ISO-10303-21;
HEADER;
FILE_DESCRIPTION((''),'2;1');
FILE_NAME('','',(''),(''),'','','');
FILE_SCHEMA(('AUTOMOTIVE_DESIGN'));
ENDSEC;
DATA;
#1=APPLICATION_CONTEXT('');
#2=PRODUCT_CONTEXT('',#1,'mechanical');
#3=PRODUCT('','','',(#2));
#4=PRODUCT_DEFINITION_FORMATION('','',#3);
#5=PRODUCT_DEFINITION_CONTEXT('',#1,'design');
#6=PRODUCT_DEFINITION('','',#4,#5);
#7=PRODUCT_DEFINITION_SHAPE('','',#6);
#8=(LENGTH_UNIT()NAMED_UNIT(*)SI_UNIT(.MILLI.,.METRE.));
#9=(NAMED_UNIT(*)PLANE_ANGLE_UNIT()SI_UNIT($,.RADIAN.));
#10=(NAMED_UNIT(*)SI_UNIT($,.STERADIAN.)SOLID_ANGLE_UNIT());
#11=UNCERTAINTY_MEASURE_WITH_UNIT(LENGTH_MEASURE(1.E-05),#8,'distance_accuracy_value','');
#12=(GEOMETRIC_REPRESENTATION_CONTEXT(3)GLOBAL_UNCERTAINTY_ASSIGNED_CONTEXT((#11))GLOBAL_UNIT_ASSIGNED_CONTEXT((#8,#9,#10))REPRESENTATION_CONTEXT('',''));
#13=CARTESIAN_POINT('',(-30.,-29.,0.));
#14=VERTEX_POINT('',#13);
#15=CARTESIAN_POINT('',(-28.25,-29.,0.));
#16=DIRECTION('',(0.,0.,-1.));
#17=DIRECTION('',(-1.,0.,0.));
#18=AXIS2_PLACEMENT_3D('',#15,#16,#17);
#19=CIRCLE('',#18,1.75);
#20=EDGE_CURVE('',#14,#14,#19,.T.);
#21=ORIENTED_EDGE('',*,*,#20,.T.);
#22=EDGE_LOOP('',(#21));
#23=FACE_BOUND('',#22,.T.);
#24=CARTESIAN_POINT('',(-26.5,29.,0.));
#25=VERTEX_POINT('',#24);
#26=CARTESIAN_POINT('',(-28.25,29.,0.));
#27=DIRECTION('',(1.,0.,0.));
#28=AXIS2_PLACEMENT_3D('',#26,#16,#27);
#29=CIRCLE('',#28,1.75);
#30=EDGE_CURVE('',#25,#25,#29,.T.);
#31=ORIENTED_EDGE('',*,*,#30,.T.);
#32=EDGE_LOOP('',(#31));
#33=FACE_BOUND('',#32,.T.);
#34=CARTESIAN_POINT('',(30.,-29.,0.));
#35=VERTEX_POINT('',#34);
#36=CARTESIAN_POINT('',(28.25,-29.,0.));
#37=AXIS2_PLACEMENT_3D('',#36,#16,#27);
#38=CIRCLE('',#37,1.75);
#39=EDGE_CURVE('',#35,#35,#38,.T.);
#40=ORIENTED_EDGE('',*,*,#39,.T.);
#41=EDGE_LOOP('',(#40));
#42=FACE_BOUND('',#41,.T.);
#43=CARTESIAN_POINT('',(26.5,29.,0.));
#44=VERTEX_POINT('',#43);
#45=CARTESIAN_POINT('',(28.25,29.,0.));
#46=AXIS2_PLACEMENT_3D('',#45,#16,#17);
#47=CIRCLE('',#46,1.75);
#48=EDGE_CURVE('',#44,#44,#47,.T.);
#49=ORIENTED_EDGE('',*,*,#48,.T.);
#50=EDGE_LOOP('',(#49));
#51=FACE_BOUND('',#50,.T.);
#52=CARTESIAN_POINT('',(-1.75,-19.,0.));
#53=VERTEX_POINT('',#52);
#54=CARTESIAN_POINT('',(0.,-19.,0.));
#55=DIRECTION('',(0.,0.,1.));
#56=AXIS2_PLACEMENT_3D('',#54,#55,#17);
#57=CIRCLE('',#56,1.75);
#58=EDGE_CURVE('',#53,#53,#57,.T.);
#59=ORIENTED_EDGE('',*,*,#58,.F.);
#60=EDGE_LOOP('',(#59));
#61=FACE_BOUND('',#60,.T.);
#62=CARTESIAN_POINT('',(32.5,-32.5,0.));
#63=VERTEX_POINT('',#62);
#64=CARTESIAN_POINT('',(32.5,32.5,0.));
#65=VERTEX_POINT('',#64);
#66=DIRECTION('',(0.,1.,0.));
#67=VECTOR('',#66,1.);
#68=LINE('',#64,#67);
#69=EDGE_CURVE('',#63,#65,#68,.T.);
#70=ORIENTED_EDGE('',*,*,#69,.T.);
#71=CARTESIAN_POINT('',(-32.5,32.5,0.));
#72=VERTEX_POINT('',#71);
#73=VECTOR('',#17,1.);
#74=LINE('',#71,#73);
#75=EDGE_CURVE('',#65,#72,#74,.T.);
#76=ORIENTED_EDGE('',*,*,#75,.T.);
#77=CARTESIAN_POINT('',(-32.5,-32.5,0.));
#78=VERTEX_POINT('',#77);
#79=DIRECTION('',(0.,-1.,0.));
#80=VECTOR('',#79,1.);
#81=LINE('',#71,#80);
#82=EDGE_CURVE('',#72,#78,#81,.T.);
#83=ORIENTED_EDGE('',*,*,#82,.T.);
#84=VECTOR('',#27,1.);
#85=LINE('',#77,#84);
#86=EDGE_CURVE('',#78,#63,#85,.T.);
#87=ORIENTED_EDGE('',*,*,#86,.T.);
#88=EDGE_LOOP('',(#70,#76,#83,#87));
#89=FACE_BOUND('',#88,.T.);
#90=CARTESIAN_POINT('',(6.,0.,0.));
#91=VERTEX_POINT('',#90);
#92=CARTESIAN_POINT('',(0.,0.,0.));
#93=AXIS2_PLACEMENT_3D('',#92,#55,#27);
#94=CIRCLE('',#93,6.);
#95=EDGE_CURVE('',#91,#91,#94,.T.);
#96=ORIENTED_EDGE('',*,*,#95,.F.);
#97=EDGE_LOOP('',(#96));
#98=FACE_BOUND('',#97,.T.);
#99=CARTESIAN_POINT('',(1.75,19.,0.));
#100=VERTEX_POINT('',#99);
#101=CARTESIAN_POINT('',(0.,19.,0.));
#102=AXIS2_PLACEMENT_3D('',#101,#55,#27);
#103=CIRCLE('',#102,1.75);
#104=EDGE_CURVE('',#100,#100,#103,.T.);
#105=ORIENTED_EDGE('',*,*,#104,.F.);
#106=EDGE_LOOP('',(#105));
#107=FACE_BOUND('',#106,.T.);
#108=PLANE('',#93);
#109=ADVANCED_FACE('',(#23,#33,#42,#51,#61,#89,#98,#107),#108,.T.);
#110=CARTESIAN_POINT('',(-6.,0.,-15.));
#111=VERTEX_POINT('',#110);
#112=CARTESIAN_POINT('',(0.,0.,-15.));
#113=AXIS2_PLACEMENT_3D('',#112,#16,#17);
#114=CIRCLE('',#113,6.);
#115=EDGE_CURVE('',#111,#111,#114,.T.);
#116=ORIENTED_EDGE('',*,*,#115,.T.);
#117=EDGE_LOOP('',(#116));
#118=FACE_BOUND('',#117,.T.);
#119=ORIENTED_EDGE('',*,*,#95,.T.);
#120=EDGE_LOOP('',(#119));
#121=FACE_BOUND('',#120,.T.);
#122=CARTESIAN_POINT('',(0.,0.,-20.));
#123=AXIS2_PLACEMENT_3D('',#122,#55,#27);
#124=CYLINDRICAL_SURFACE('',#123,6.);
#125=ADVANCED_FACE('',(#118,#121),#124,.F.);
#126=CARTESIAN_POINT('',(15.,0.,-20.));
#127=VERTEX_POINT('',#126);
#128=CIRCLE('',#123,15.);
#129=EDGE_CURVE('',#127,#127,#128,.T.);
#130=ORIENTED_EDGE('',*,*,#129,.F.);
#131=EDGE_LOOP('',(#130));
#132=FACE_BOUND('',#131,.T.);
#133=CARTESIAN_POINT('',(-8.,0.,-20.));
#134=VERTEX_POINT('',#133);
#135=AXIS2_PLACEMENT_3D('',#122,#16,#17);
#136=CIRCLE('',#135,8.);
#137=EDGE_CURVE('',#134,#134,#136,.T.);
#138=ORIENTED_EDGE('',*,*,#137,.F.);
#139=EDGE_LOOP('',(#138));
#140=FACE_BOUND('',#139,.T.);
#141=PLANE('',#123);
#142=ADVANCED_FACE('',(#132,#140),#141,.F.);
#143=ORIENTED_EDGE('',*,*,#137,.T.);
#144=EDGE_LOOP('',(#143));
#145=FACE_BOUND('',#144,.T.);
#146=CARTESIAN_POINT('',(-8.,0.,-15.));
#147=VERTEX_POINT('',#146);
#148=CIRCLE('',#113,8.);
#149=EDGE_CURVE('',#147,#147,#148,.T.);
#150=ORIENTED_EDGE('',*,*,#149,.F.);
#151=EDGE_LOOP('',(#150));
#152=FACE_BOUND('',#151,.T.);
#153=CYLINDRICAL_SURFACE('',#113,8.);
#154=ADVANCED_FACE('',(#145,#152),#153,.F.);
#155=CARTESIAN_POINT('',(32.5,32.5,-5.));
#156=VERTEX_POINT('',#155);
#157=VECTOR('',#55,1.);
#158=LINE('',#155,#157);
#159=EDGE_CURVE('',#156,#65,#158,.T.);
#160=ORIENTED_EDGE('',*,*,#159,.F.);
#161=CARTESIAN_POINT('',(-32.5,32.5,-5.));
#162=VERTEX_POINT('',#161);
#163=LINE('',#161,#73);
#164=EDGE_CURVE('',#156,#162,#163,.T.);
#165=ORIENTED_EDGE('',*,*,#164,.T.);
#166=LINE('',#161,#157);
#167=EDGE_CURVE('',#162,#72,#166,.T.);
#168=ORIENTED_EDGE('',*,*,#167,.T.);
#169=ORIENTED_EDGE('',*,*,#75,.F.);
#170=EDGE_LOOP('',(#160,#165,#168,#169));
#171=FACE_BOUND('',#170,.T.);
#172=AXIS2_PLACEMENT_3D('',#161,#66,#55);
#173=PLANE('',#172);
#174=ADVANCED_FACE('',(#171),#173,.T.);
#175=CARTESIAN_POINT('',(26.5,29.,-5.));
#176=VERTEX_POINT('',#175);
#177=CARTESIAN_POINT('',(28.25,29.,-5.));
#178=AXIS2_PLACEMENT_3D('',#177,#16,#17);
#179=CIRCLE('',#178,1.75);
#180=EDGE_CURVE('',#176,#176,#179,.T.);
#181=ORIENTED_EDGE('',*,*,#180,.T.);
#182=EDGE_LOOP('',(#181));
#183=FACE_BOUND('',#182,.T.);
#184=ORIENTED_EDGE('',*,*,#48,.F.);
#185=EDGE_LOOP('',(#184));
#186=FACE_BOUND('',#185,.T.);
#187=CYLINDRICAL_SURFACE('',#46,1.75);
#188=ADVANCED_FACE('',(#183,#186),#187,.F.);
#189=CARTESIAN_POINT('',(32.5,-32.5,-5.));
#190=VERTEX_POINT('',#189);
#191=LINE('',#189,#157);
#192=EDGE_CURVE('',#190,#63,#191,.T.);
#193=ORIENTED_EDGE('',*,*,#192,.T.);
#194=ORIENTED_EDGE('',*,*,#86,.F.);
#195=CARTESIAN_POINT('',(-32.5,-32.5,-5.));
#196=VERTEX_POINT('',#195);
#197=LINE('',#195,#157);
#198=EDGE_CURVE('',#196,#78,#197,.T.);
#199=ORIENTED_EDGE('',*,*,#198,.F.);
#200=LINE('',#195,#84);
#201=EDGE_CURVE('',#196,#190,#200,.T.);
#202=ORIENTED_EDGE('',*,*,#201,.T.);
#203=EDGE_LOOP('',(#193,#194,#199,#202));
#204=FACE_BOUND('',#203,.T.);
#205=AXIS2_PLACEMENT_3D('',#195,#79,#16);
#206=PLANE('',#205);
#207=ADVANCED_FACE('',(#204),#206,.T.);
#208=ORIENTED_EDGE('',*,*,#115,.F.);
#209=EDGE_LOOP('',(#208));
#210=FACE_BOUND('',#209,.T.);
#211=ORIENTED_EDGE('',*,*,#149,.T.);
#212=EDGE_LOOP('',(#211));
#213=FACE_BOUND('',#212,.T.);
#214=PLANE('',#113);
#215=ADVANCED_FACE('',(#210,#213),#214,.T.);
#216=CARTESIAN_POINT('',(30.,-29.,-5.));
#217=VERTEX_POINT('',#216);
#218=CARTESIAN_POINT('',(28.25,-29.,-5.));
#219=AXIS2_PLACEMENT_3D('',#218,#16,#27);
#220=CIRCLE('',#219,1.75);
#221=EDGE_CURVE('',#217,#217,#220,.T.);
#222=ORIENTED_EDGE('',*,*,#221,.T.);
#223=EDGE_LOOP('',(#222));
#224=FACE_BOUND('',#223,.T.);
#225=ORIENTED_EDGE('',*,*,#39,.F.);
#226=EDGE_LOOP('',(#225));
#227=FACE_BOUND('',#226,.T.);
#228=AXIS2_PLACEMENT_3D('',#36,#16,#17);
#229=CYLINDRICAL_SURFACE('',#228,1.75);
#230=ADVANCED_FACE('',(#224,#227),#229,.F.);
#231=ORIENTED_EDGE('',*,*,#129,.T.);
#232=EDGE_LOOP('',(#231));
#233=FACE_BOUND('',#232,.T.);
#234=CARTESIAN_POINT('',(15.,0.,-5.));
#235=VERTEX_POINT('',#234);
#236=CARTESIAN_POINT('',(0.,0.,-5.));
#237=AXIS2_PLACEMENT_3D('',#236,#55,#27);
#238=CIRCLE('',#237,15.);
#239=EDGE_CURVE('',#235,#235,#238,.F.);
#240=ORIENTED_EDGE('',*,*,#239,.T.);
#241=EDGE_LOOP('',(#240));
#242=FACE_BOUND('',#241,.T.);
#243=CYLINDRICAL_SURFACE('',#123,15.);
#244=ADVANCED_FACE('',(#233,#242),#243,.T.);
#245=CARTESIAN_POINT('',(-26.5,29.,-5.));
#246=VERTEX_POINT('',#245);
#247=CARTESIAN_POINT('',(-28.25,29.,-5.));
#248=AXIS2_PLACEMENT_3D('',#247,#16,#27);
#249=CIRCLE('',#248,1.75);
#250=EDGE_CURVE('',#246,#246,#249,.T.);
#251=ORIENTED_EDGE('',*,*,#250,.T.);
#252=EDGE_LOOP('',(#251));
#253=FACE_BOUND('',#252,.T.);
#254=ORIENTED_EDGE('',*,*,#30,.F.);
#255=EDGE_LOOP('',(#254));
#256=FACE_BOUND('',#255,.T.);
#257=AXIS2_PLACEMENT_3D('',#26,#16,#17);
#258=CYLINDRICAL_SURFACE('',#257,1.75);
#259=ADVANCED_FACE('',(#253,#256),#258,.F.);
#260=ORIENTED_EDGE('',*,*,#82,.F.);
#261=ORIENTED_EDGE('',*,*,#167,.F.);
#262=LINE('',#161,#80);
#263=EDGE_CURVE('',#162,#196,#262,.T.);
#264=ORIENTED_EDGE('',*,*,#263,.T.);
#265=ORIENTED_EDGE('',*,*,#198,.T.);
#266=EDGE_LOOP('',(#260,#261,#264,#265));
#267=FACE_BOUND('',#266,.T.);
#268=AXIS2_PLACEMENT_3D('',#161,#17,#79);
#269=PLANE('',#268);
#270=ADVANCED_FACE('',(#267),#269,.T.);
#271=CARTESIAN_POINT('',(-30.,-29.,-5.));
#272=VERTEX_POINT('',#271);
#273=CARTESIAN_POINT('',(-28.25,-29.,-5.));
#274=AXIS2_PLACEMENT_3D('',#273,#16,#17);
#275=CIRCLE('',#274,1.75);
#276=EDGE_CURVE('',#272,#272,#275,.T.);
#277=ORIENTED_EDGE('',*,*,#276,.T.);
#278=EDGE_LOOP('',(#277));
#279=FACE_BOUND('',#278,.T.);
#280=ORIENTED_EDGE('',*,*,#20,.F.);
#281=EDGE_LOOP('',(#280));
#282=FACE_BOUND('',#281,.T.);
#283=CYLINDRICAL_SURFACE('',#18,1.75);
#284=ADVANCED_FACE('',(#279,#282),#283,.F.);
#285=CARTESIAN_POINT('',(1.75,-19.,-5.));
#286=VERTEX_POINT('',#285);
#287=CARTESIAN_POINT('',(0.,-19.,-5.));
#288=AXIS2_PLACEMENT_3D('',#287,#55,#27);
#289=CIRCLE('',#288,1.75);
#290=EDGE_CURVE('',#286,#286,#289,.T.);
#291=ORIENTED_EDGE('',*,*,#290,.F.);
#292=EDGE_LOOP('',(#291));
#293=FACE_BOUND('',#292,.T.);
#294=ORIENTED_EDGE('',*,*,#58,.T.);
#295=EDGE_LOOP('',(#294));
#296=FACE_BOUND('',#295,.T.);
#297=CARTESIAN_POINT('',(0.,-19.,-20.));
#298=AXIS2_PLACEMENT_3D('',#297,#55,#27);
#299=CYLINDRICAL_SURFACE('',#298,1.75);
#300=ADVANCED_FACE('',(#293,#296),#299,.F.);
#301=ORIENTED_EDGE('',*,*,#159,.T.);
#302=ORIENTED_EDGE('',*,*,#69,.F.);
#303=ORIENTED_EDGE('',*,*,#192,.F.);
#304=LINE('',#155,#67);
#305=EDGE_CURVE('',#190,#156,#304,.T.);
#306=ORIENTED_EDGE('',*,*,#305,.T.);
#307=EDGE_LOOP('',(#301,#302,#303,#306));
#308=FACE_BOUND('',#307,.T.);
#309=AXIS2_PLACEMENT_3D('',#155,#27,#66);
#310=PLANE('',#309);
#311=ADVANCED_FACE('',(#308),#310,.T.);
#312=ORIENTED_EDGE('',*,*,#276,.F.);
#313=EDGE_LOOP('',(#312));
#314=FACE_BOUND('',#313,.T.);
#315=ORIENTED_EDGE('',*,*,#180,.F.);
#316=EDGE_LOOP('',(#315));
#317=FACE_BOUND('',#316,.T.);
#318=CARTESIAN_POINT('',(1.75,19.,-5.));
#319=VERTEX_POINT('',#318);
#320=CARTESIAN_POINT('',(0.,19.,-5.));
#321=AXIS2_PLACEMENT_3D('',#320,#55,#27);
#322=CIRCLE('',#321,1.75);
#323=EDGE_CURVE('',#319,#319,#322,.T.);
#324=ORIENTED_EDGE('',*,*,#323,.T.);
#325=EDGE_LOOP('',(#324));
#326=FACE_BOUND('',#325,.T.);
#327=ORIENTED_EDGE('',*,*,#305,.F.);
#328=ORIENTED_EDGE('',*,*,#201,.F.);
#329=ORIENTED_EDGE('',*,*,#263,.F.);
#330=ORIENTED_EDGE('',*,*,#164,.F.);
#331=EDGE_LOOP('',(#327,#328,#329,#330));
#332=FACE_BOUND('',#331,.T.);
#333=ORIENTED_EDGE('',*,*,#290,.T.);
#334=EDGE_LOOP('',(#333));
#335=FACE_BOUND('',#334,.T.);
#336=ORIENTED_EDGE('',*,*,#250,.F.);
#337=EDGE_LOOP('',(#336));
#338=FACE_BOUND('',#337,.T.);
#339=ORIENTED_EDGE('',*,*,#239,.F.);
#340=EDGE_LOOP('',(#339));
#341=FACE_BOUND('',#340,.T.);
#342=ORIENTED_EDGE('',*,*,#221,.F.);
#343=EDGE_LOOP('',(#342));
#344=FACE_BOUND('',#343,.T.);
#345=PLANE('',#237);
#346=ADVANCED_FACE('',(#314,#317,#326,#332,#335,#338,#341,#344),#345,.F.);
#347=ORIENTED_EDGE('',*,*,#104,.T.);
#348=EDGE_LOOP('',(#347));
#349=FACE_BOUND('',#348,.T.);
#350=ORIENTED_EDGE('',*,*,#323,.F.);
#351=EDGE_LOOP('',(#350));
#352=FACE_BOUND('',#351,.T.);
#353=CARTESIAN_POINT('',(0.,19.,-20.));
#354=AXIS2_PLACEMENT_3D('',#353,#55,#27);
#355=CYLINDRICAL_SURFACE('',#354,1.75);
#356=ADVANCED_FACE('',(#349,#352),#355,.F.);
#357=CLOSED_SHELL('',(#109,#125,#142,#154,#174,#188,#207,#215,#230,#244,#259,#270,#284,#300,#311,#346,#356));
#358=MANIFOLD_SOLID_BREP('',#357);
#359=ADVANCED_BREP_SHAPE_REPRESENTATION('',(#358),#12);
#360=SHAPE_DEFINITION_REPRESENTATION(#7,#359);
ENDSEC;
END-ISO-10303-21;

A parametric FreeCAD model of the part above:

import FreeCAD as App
import Part
import Sketcher
Q = App.Units.Quantity


def add_polygon(sketch, points):
    """Adds a closed chain of lines whose ends are joined by coincident constraints."""
    first, n = sketch.GeometryCount, len(points)
    for a, b in zip(points, points[1:] + points[:1]):
        sketch.addGeometry(Part.LineSegment(App.Vector(*a, 0), App.Vector(*b, 0)), False)
    for i in range(n):
        sketch.addConstraint(Sketcher.Constraint("Coincident", first + i, 2, first + (i + 1) % n, 1))

doc = App.newDocument("Part")
body = doc.addObject("PartDesign::Body", "Body")

# Sketch on XY plane
sketch1 = body.newObject("Sketcher::SketchObject", "Sketch")
sketch1.AttachmentSupport = (doc.getObject("XY_Plane"), [""])
sketch1.MapMode = "FlatFace"
sketch1.addGeometry(Part.Circle(App.Vector(0, 0, 0), App.Vector(0, 0, 1), 15), False)
sketch1.addConstraint([
    Sketcher.Constraint("Coincident", 0, 3, -1, 1),
    Sketcher.Constraint("Diameter", 0, Q("30 mm")),
])
pad1 = body.newObject("PartDesign::Pad", "Pad")
pad1.Profile = sketch1
pad1.Length = 20
pad1.Reversed = True

# Sketch on XY plane
sketch2 = body.newObject("Sketcher::SketchObject", "Sketch001")
sketch2.AttachmentSupport = (doc.getObject("XY_Plane"), [""])
sketch2.MapMode = "FlatFace"
sketch2.AttachmentOffset = App.Placement(App.Vector(0, 0, -20), App.Rotation())
sketch2.addGeometry(Part.Circle(App.Vector(0, 0, 0), App.Vector(0, 0, 1), 8), False)
sketch2.addConstraint([
    Sketcher.Constraint("Coincident", 0, 3, -1, 1),
    Sketcher.Constraint("Diameter", 0, Q("16 mm")),
])
pocket1 = body.newObject("PartDesign::Pocket", "Pocket")
pocket1.Profile = sketch2
pocket1.Length = 5
pocket1.Reversed = True

# Sketch on XY plane
sketch3 = body.newObject("Sketcher::SketchObject", "Sketch002")
sketch3.AttachmentSupport = (doc.getObject("XY_Plane"), [""])
sketch3.MapMode = "FlatFace"
add_polygon(sketch3, [(-32, 32), (-32, -32), (32, -32), (32, 32)])  # lines 0-3
sketch3.addConstraint([
    Sketcher.Constraint("Vertical", 0),
    Sketcher.Constraint("Horizontal", 1),
    Sketcher.Constraint("Vertical", 2),
    Sketcher.Constraint("Horizontal", 3),
    Sketcher.Constraint("Symmetric", 0, 2, 2, 2, -1, 1),
    Sketcher.Constraint("Equal", 3, 0),
    Sketcher.Constraint("DistanceX", 1, 1, 1, 2, Q("65 mm")),
])
pad2 = body.newObject("PartDesign::Pad", "Pad001")
pad2.Profile = sketch3
pad2.Length = 5
pad2.Reversed = True

# Sketch on XY plane
sketch4 = body.newObject("Sketcher::SketchObject", "Sketch003")
sketch4.AttachmentSupport = (doc.getObject("XY_Plane"), [""])
sketch4.MapMode = "FlatFace"
sketch4.addGeometry(Part.Circle(App.Vector(0, 0, 0), App.Vector(0, 0, 1), 6), False)
sketch4.addConstraint([
    Sketcher.Constraint("Coincident", 0, 3, -1, 1),
    Sketcher.Constraint("Diameter", 0, Q("12 mm")),
])
pocket2 = body.newObject("PartDesign::Pocket", "Pocket001")
pocket2.Profile = sketch4
pocket2.Type = "ThroughAll"

# Sketch on XY plane
sketch5 = body.newObject("Sketcher::SketchObject", "Sketch004")
sketch5.AttachmentSupport = (doc.getObject("XY_Plane"), [""])
sketch5.MapMode = "FlatFace"
sketch5.AttachmentOffset = App.Placement(App.Vector(0, 0, -5), App.Rotation())
sketch5.addGeometry([
    Part.Circle(App.Vector(28.2, 29, 0), App.Vector(0, 0, 1), 1.8),
    Part.Circle(App.Vector(-28.2, 29, 0), App.Vector(0, 0, 1), 1.8),
    Part.Circle(App.Vector(-28.2, -29, 0), App.Vector(0, 0, 1), 1.8),
    Part.Circle(App.Vector(28.2, -29, 0), App.Vector(0, 0, 1), 1.8),
], False)
sketch5.addConstraint([
    Sketcher.Constraint("Equal", 0, 1),
    Sketcher.Constraint("Equal", 1, 2),
    Sketcher.Constraint("Equal", 2, 3),
    Sketcher.Constraint("Symmetric", 0, 3, 2, 3, -1, 1),
    Sketcher.Constraint("Symmetric", 1, 3, 3, 3, -1, 1),
    Sketcher.Constraint("Symmetric", 0, 3, 1, 3, -2),
    Sketcher.Constraint("Diameter", 0, Q("3.5 mm")),
    Sketcher.Constraint("DistanceY", -1, 1, 0, 3, Q("29 mm")),
    Sketcher.Constraint("DistanceX", 1, 3, 0, 3, Q("56.5 mm")),
])
pocket3 = body.newObject("PartDesign::Pocket", "Pocket002")
pocket3.Profile = sketch5
pocket3.Type = "ThroughAll"
pocket3.Reversed = True

# Sketch on XY plane
sketch6 = body.newObject("Sketcher::SketchObject", "Sketch005")
sketch6.AttachmentSupport = (doc.getObject("XY_Plane"), [""])
sketch6.MapMode = "FlatFace"
sketch6.addGeometry([
    Part.Circle(App.Vector(0, 19, 0), App.Vector(0, 0, 1), 1.8),
    Part.Circle(App.Vector(0, -19, 0), App.Vector(0, 0, 1), 1.8),
], False)
sketch6.addConstraint([
    Sketcher.Constraint("Equal", 0, 1),
    Sketcher.Constraint("Symmetric", 0, 3, 1, 3, -1, 1),
    Sketcher.Constraint("PointOnObject", 0, 3, -2),
    Sketcher.Constraint("Diameter", 0, Q("3.5 mm")),
    Sketcher.Constraint("DistanceY", -1, 1, 0, 3, Q("19 mm")),
])
pocket4 = body.newObject("PartDesign::Pocket", "Pocket003")
pocket4.Profile = sketch6
pocket4.Type = "ThroughAll"

doc.recompute()
